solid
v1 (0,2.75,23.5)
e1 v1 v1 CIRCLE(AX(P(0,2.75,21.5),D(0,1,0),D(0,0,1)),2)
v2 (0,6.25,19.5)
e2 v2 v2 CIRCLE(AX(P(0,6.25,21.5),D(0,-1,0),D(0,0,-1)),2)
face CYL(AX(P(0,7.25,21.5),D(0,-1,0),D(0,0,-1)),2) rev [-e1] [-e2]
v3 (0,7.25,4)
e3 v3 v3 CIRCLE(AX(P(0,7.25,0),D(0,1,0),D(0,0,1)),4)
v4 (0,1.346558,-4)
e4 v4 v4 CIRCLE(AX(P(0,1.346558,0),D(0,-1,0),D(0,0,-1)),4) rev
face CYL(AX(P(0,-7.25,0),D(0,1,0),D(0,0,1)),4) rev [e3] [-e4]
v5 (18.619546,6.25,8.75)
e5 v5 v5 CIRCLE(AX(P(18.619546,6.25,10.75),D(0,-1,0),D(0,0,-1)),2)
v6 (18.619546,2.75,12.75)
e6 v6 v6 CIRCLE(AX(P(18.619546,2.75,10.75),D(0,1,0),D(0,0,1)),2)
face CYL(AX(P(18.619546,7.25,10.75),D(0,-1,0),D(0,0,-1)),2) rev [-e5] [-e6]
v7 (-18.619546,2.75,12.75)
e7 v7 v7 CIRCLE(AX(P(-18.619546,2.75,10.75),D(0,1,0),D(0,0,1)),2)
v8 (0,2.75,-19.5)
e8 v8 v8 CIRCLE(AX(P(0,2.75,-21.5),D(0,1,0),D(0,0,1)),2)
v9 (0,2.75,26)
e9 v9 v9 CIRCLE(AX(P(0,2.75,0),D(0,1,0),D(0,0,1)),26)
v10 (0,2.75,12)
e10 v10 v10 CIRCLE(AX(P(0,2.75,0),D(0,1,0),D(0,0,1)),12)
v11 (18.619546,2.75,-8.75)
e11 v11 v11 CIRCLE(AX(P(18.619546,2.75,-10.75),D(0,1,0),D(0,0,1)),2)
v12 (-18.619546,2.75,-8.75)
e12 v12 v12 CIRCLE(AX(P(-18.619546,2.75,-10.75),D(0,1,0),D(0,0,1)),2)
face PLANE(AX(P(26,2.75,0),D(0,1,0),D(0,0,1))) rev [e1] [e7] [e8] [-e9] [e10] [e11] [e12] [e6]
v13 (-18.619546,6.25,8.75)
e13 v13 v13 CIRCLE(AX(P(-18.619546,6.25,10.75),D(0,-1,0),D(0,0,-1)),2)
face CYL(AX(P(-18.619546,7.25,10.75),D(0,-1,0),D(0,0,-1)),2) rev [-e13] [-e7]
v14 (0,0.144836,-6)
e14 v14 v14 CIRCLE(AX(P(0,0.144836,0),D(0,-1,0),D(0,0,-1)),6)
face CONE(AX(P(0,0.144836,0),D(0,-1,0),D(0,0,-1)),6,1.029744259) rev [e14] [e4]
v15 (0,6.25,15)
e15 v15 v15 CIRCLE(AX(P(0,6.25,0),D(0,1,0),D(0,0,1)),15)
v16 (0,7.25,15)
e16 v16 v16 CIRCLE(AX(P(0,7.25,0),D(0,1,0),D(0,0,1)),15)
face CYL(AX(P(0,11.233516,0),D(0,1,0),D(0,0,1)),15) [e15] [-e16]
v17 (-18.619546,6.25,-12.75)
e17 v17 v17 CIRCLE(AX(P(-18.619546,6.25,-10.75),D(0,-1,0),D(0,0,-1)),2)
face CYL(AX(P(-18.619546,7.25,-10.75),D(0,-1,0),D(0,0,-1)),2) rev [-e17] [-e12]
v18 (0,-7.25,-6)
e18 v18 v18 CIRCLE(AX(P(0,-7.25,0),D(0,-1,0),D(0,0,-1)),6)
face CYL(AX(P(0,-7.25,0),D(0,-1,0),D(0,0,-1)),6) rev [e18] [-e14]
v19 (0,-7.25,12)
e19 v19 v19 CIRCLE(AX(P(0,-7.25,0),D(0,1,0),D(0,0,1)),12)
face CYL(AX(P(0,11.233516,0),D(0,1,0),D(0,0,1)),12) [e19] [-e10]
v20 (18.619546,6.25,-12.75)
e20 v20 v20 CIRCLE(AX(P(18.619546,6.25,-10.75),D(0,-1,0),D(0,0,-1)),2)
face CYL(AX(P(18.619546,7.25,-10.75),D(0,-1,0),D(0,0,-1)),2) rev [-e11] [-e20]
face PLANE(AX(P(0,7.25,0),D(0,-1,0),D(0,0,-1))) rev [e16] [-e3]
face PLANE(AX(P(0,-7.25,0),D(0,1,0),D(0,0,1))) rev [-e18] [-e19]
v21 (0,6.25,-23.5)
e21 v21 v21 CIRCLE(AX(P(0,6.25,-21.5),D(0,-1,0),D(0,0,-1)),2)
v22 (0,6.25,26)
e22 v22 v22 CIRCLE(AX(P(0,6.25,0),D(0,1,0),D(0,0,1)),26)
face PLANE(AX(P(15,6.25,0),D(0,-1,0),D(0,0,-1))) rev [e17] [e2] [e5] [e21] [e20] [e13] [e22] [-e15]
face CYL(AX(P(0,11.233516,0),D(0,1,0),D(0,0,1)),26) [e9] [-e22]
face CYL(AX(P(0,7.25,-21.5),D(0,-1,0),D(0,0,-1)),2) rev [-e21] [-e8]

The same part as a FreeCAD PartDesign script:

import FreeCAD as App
import Part
import Sketcher
Q = App.Units.Quantity

doc = App.newDocument("Part")
body = doc.addObject("PartDesign::Body", "Body")

# Sketch on XY plane
sketch1 = body.newObject("Sketcher::SketchObject", "Sketch")
sketch1.AttachmentSupport = (doc.getObject("XY_Plane"), [""])
sketch1.MapMode = "FlatFace"
sketch1.addGeometry([
    Part.LineSegment(App.Vector(0, 7.25, 0), App.Vector(0, -7.25, 0)),  # 0
    Part.LineSegment(App.Vector(0, -7.25, 0), App.Vector(12, -7.25, 0)),  # 1
    Part.LineSegment(App.Vector(12, -7.25, 0), App.Vector(12, 2.75, 0)),  # 2
    Part.LineSegment(App.Vector(12, 2.75, 0), App.Vector(26, 2.75, 0)),  # 3
    Part.LineSegment(App.Vector(26, 2.75, 0), App.Vector(26, 6.25, 0)),  # 4
    Part.LineSegment(App.Vector(26, 6.25, 0), App.Vector(15, 6.25, 0)),  # 5
    Part.LineSegment(App.Vector(15, 6.25, 0), App.Vector(15, 7.25, 0)),  # 6
    Part.LineSegment(App.Vector(15, 7.25, 0), App.Vector(0, 7.25, 0)),  # 7
], False)
sketch1.addConstraint([
    Sketcher.Constraint("Coincident", 0, 2, 1, 1),
    Sketcher.Constraint("Coincident", 1, 2, 2, 1),
    Sketcher.Constraint("Coincident", 2, 2, 3, 1),
    Sketcher.Constraint("Coincident", 3, 2, 4, 1),
    Sketcher.Constraint("Coincident", 4, 2, 5, 1),
    Sketcher.Constraint("Coincident", 5, 2, 6, 1),
    Sketcher.Constraint("Coincident", 6, 2, 7, 1),
    Sketcher.Constraint("Coincident", 7, 2, 0, 1),
    Sketcher.Constraint("Vertical", 0),
    Sketcher.Constraint("Horizontal", 1),
    Sketcher.Constraint("Vertical", 2),
    Sketcher.Constraint("Horizontal", 3),
    Sketcher.Constraint("Vertical", 4),
    Sketcher.Constraint("Horizontal", 5),
    Sketcher.Constraint("Vertical", 6),
    Sketcher.Constraint("Horizontal", 7),
    Sketcher.Constraint("Symmetric", 0, 2, 7, 2, -1, 1),
    Sketcher.Constraint("DistanceX", 1, 1, 1, 2, Q("12 mm")),
    Sketcher.Constraint("DistanceX", 3, 1, 3, 2, Q("14 mm")),
    Sketcher.Constraint("DistanceX", 5, 2, 5, 1, Q("11 mm")),
    Sketcher.Constraint("DistanceY", 2, 1, 2, 2, Q("10 mm")),
    Sketcher.Constraint("DistanceY", 6, 1, 6, 2, Q("1 mm")),
    Sketcher.Constraint("DistanceY", 0, 2, 0, 1, Q("14.5 mm")),
])
revolution = body.newObject("PartDesign::Revolution", "Revolution")
revolution.Profile = sketch1
revolution.ReferenceAxis = (sketch1, ["V_Axis"])
revolution.Angle = 360

# Sketch on XZ plane
sketch2 = body.newObject("Sketcher::SketchObject", "Sketch001")
sketch2.AttachmentSupport = (doc.getObject("XZ_Plane"), [""])
sketch2.MapMode = "FlatFace"
sketch2.AttachmentOffset = App.Placement(App.Vector(0, 0, 7.25), App.Rotation())
sketch2.addGeometry(Part.Circle(App.Vector(0, 0, 0), App.Vector(0, 0, 1), 6), False)
sketch2.addConstraint([
    Sketcher.Constraint("Coincident", 0, 3, -1, 1),
    Sketcher.Constraint("Diameter", 0, Q("12 mm")),
])
doc.recompute()
hole = body.newObject("PartDesign::Hole", "Hole")
hole.Profile = sketch2
hole.ThreadType = "None"
hole.Diameter = 12
hole.DepthType = "Dimension"
hole.Depth = 7.394836
hole.DrillPoint = "Angled"
hole.DrillPointAngle = 118

# Sketch on XZ plane
sketch3 = body.newObject("Sketcher::SketchObject", "Sketch002")
sketch3.AttachmentSupport = (doc.getObject("XZ_Plane"), [""])
sketch3.MapMode = "FlatFace"
sketch3.AttachmentOffset = App.Placement(App.Vector(0, 0, -7.25), App.Rotation())
sketch3.addGeometry(Part.Circle(App.Vector(0, 0, 0), App.Vector(0, 0, 1), 4), False)
sketch3.addConstraint([
    Sketcher.Constraint("Coincident", 0, 3, -1, 1),
    Sketcher.Constraint("Diameter", 0, Q("8 mm")),
])
pocket1 = body.newObject("PartDesign::Pocket", "Pocket")
pocket1.Profile = sketch3
pocket1.Type = "ThroughAll"
pocket1.Reversed = True

# Sketch on XZ plane
sketch4 = body.newObject("Sketcher::SketchObject", "Sketch003")
sketch4.AttachmentSupport = (doc.getObject("XZ_Plane"), [""])
sketch4.MapMode = "FlatFace"
sketch4.AttachmentOffset = App.Placement(App.Vector(0, 0, -2.75), App.Rotation())
sketch4.addGeometry([
    Part.Circle(App.Vector(-18.619546, 10.75, 0), App.Vector(0, 0, 1), 2),  # 0
    Part.Circle(App.Vector(0, 21.5, 0), App.Vector(0, 0, 1), 2),  # 1
    Part.Circle(App.Vector(18.619546, 10.75, 0), App.Vector(0, 0, 1), 2),  # 2
    Part.Circle(App.Vector(18.619546, -10.75, 0), App.Vector(0, 0, 1), 2),  # 3
    Part.Circle(App.Vector(0, -21.5, 0), App.Vector(0, 0, 1), 2),  # 4
    Part.Circle(App.Vector(-18.619546, -10.75, 0), App.Vector(0, 0, 1), 2),  # 5
], False)
sketch4.addConstraint([
    Sketcher.Constraint("Equal", 0, 1),
    Sketcher.Constraint("Equal", 1, 2),
    Sketcher.Constraint("Equal", 2, 3),
    Sketcher.Constraint("Equal", 3, 4),
    Sketcher.Constraint("Equal", 4, 5),
    Sketcher.Constraint("Symmetric", 0, 3, 3, 3, -1, 1),
    Sketcher.Constraint("Symmetric", 1, 3, 4, 3, -1, 1),
    Sketcher.Constraint("Symmetric", 2, 3, 5, 3, -1, 1),
    Sketcher.Constraint("Symmetric", 0, 3, 2, 3, -2),
    Sketcher.Constraint("PointOnObject", 1, 3, -2),
    Sketcher.Constraint("Diameter", 0, Q("4 mm")),
    Sketcher.Constraint("DistanceY", 4, 3, 1, 3, Q("43 mm")),
    Sketcher.Constraint("DistanceY", 3, 3, 2, 3, Q("21.5 mm")),
    Sketcher.Constraint("DistanceX", 0, 3, -1, 1, Q("18.619546 mm")),
])
pocket2 = body.newObject("PartDesign::Pocket", "Pocket001")
pocket2.Profile = sketch4
pocket2.Type = "ThroughAll"
pocket2.Midplane = True

doc.recompute()
